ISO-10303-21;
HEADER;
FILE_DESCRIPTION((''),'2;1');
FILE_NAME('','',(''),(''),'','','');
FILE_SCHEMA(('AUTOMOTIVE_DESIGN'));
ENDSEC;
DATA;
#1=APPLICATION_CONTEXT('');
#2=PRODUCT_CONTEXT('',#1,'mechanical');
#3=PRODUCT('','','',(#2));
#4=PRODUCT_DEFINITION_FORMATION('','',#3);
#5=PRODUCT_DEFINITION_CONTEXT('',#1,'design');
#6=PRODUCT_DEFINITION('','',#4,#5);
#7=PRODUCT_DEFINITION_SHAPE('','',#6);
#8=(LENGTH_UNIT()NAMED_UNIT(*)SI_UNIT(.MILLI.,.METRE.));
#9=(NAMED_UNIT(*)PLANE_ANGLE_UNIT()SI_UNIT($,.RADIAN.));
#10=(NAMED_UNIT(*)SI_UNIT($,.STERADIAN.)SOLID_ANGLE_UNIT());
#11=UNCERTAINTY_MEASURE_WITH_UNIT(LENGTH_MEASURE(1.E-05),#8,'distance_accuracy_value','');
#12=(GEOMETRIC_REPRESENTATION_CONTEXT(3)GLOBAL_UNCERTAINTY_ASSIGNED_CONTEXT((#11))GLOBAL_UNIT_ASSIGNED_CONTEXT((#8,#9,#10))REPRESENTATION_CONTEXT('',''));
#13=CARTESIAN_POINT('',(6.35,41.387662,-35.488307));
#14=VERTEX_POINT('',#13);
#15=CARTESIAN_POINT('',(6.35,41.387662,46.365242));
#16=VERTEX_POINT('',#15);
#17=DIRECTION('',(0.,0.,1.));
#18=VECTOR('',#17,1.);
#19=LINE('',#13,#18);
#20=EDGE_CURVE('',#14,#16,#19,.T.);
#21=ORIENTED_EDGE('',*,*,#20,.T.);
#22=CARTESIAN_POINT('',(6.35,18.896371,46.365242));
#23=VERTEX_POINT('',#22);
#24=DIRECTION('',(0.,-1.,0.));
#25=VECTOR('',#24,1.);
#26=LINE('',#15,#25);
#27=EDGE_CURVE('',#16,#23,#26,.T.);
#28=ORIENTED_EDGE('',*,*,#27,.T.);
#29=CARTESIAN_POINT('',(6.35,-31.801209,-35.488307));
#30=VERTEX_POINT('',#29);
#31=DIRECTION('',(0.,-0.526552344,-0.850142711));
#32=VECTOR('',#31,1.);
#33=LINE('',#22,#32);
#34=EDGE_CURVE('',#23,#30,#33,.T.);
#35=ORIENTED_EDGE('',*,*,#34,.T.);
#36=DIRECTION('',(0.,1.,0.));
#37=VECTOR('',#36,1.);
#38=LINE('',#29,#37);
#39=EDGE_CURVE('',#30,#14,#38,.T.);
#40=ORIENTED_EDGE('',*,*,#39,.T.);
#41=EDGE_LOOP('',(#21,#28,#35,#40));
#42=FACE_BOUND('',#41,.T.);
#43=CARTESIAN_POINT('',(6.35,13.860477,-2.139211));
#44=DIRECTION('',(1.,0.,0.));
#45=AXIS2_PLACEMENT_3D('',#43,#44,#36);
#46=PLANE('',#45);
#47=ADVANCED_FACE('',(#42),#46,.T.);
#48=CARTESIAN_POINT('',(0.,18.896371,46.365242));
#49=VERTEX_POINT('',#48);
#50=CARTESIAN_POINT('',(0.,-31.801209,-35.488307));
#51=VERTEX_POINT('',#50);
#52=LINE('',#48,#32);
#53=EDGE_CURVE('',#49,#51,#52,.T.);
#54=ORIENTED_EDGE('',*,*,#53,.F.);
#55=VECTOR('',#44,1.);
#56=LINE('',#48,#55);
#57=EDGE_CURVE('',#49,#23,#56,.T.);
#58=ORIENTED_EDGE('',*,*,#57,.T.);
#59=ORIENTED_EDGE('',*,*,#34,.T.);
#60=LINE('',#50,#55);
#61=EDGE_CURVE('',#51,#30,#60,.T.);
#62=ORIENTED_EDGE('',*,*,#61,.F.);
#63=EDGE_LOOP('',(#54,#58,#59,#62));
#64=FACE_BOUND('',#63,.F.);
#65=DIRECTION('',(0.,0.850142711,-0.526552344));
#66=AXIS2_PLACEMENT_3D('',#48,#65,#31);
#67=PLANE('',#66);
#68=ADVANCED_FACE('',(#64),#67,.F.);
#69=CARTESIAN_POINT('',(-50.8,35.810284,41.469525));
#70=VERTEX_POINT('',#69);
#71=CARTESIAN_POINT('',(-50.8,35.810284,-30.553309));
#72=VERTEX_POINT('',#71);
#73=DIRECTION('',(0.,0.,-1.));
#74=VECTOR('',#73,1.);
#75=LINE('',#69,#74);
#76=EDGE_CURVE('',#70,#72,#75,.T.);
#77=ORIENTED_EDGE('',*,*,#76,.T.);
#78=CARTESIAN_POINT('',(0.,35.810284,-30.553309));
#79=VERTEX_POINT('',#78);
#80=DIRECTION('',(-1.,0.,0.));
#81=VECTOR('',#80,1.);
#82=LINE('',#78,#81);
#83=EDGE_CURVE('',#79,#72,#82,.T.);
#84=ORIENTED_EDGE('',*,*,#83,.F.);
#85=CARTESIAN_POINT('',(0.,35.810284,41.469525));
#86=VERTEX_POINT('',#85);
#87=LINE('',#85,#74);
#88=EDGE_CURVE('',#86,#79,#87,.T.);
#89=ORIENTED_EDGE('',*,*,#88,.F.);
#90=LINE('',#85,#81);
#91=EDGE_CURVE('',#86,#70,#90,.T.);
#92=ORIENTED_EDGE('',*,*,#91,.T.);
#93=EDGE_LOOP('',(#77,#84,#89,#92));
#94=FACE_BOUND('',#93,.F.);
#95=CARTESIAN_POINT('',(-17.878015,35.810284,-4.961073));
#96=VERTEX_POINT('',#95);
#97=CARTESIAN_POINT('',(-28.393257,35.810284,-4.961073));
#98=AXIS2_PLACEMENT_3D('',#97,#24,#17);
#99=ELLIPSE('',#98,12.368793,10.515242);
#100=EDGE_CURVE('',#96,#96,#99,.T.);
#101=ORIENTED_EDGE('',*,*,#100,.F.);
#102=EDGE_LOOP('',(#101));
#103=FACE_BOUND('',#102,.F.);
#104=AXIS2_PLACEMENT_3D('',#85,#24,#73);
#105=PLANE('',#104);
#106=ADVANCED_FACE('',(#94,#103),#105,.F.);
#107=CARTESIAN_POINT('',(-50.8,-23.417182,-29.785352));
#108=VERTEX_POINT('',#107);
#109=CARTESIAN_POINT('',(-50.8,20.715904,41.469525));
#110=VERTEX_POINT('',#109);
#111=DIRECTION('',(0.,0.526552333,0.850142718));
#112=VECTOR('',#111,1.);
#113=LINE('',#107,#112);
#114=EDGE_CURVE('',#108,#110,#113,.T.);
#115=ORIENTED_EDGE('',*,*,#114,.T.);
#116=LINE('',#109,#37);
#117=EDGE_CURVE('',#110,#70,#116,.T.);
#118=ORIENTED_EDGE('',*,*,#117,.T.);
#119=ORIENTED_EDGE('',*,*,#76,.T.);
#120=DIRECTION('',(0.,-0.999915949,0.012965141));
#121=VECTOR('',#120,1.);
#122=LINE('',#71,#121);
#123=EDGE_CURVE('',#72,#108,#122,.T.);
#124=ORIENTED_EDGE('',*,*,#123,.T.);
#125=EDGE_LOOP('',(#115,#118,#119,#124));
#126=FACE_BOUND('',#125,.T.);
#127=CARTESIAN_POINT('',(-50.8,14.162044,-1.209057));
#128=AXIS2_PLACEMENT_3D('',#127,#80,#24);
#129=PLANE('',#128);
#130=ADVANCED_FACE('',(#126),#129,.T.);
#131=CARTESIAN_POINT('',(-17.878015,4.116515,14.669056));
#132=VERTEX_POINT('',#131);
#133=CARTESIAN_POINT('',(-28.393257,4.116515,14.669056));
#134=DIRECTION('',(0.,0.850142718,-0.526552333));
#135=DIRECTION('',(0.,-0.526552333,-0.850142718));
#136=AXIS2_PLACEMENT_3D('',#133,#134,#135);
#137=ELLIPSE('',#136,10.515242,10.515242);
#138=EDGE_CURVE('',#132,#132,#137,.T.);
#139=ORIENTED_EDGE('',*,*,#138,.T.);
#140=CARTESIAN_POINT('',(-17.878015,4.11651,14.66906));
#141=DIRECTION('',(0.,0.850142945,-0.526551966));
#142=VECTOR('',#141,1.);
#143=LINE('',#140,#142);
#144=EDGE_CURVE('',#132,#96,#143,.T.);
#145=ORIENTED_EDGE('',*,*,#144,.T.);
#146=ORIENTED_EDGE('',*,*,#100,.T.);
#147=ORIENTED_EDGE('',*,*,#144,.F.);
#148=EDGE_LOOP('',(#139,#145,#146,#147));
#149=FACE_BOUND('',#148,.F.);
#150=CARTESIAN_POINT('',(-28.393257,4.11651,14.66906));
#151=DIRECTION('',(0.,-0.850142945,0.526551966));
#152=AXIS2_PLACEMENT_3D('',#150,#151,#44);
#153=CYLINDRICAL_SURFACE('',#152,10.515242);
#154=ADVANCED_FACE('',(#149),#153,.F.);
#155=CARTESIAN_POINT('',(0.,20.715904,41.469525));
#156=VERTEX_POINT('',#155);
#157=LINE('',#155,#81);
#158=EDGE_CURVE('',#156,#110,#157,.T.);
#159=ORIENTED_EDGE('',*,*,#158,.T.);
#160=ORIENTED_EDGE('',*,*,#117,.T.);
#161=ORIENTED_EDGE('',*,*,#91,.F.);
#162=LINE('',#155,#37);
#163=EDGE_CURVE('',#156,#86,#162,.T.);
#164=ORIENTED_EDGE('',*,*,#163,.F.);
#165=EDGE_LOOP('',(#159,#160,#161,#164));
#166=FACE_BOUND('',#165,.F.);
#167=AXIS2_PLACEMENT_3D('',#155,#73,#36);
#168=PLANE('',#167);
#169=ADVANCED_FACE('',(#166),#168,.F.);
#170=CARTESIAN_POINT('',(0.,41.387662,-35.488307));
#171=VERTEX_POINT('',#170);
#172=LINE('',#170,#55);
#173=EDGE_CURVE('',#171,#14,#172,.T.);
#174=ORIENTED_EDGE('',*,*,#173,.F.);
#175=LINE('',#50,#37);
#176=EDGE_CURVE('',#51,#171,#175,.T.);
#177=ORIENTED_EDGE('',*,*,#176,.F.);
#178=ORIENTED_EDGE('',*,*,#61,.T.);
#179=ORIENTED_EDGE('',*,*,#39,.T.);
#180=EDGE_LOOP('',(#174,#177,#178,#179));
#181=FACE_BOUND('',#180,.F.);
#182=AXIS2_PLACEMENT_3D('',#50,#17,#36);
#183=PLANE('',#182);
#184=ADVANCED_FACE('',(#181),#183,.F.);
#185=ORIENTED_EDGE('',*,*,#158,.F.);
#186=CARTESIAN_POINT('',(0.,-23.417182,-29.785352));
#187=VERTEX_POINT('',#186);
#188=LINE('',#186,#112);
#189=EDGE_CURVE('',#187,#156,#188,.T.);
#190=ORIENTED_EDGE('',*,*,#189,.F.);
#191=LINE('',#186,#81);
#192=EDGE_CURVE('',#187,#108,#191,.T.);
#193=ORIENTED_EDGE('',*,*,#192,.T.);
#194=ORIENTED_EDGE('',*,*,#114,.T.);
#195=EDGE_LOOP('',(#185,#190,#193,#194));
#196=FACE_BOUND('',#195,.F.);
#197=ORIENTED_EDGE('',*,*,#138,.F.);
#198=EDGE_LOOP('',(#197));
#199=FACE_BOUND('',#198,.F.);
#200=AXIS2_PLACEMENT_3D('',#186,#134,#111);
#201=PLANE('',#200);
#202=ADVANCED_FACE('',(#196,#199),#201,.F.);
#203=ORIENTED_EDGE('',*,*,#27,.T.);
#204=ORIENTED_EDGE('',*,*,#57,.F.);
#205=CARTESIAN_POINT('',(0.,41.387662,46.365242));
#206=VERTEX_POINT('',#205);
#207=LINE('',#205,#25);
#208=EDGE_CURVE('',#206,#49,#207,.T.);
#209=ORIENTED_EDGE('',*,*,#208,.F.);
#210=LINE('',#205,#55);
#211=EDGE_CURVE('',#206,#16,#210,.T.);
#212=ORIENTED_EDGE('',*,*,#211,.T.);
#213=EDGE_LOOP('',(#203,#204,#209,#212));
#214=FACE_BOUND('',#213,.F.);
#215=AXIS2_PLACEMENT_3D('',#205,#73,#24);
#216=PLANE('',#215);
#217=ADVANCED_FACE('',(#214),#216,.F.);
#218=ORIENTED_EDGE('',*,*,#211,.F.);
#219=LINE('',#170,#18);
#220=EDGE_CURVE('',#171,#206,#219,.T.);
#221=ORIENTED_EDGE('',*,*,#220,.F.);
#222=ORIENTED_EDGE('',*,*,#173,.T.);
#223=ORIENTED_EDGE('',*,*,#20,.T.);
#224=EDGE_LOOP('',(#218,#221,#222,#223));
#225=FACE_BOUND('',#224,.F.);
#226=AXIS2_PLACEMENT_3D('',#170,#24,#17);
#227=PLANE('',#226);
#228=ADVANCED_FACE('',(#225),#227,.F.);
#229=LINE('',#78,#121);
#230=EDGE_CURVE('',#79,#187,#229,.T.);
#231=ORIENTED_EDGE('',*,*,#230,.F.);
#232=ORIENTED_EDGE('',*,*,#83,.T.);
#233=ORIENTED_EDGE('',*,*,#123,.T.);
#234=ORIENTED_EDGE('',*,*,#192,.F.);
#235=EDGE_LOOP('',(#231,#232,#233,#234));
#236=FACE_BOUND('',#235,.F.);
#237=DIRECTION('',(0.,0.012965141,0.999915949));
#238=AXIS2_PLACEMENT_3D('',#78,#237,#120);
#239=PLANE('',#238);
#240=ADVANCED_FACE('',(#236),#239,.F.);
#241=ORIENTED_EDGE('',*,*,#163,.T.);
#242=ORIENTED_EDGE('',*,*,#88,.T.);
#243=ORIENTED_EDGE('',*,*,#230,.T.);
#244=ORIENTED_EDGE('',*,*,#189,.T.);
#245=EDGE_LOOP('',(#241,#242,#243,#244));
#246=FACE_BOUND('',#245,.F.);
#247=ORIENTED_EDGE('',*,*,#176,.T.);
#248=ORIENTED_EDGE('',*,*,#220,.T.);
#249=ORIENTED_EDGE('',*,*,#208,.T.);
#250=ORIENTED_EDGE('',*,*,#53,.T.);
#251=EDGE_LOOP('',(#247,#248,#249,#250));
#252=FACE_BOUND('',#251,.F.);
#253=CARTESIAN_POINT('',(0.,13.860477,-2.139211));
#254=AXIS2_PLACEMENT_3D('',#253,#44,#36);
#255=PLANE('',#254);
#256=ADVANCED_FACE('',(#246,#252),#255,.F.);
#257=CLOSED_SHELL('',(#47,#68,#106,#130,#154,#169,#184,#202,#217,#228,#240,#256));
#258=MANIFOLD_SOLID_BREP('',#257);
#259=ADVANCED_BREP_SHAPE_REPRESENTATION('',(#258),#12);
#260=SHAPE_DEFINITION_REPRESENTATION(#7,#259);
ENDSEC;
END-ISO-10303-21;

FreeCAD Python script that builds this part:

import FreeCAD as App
import Part
import Sketcher

doc = App.newDocument("Part")
params = doc.addObject("Spreadsheet::Sheet", "Params")
for row, (alias, value) in enumerate([
    ("pad1_length", "0.25 in"),
    ("pad2_length", "2 in"),
    ("pocket1_length", "3.3 in"),
], start=1):
    params.set(f"A{row}", alias)
    params.set(f"B{row}", "=" + value)
    params.setAlias(f"B{row}", alias)

body = doc.addObject("PartDesign::Body", "Body")

# Sketch on YZ plane
sketch1 = body.newObject("Sketcher::SketchObject", "Sketch")
sketch1.AttachmentSupport = (doc.getObject("YZ_Plane"), [""])
sketch1.MapMode = "FlatFace"
sketch1.addGeometry([
    Part.LineSegment(App.Vector(41, -35, 0), App.Vector(41, 46, 0)),
    Part.LineSegment(App.Vector(41, 46, 0), App.Vector(19, 46, 0)),
    Part.LineSegment(App.Vector(19, 46, 0), App.Vector(-32, -35, 0)),
    Part.LineSegment(App.Vector(-32, -35, 0), App.Vector(41, -35, 0)),
], False)
sketch1.addConstraint([
    Sketcher.Constraint("Coincident", 0, 2, 1, 1),
    Sketcher.Constraint("Coincident", 1, 2, 2, 1),
    Sketcher.Constraint("Coincident", 2, 2, 3, 1),
    Sketcher.Constraint("Coincident", 3, 2, 0, 1),
    Sketcher.Constraint("Vertical", 0),
    Sketcher.Constraint("Horizontal", 1),
    Sketcher.Constraint("Horizontal", 3),
    Sketcher.Constraint("DistanceX", 1, 2, 1, 1, 22.491291),
    Sketcher.Constraint("DistanceX", 3, 1, 3, 2, 73.188871),
    Sketcher.Constraint("DistanceY", 0, 1, 0, 2, 81.853549),
    Sketcher.Constraint("DistanceX", -1, 1, 1, 2, 18.896371),
    Sketcher.Constraint("DistanceY", -1, 1, 0, 2, 46.365242),
])
pad1 = body.newObject("PartDesign::Pad", "Pad")
pad1.Profile = sketch1
pad1.setExpression("Length", "Params.pad1_length")

# Sketch on YZ plane
sketch2 = body.newObject("Sketcher::SketchObject", "Sketch001")
sketch2.AttachmentSupport = (doc.getObject("YZ_Plane"), [""])
sketch2.MapMode = "FlatFace"
sketch2.addGeometry([
    Part.LineSegment(App.Vector(36, -31, 0), App.Vector(-23, -30, 0)),
    Part.LineSegment(App.Vector(-23, -30, 0), App.Vector(21, 41, 0)),
    Part.LineSegment(App.Vector(21, 41, 0), App.Vector(36, 41, 0)),
    Part.LineSegment(App.Vector(36, 41, 0), App.Vector(36, -31, 0)),
], False)
sketch2.addConstraint([
    Sketcher.Constraint("Coincident", 0, 2, 1, 1),
    Sketcher.Constraint("Coincident", 1, 2, 2, 1),
    Sketcher.Constraint("Coincident", 2, 2, 3, 1),
    Sketcher.Constraint("Coincident", 3, 2, 0, 1),
    Sketcher.Constraint("Horizontal", 2),
    Sketcher.Constraint("Vertical", 3),
    Sketcher.Constraint("DistanceX", 2, 1, 2, 2, 15.09438),
    Sketcher.Constraint("DistanceY", 3, 2, 3, 1, 72.022834),
    Sketcher.Constraint("DistanceY", 0, 2, -1, 1, 29.785352),
    Sketcher.Constraint("DistanceY", 3, 2, -1, 1, 30.553309),
    Sketcher.Constraint("Distance", 0, 59.232445),
    Sketcher.Constraint("DistanceX", 0, 2, -1, 1, 23.417182),
])
pad2 = body.newObject("PartDesign::Pad", "Pad001")
pad2.Profile = sketch2
pad2.setExpression("Length", "Params.pad2_length")
pad2.Reversed = True

# Sketch on an angled plane
sketch3 = body.newObject("Sketcher::SketchObject", "Sketch002")
sketch3.Placement = App.Placement(App.Vector(0, -3.591343, 2.224368), App.Rotation(App.Vector(1, 0, 0), App.Vector(0, 0.526551966, 0.850142945), App.Vector(0, -0.850142945, 0.526551966), "ZXY"))
sketch3.addGeometry(Part.Circle(App.Vector(-28, 15, 0), App.Vector(0, 0, 1), 11), False)
sketch3.addConstraint([
    Sketcher.Constraint("Diameter", 0, 21.030484),
    Sketcher.Constraint("DistanceY", -1, 1, 0, 3, 14.638352),
    Sketcher.Constraint("DistanceX", 0, 3, -1, 1, 28.393257),
])
pocket1 = body.newObject("PartDesign::Pocket", "Pocket")
pocket1.Profile = sketch3
pocket1.setExpression("Length", "Params.pocket1_length")

doc.recompute()
